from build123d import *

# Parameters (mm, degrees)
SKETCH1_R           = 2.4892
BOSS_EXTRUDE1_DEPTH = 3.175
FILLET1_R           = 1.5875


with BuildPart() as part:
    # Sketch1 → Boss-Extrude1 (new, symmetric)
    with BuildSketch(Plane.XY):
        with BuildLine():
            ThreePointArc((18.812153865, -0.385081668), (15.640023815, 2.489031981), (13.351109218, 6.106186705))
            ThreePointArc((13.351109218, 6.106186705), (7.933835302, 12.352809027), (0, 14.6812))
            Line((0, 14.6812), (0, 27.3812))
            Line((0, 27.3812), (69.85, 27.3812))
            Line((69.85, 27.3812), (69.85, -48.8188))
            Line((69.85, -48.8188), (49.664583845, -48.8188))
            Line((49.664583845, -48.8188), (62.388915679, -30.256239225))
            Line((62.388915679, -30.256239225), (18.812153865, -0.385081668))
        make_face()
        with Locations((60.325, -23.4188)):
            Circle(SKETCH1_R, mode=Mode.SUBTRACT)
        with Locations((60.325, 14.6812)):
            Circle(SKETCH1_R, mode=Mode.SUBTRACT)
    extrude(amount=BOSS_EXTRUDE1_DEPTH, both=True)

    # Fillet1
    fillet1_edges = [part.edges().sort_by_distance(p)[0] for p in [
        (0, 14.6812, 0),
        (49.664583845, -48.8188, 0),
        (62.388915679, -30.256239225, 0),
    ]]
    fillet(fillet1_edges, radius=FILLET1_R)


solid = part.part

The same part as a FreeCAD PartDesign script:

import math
import FreeCAD as App
import Part
import Sketcher

V = App.Vector
Q = App.Units.Quantity


def edges_at(feature, points):
    """Names of the edges that pass closest to the given points."""
    edges = feature.Shape.Edges
    near = lambda p: min(range(len(edges)), key=lambda i: edges[i].distToShape(Part.Vertex(*p))[0])
    return sorted({f"Edge{near(p) + 1}" for p in points})

doc = App.newDocument("Part")
body = doc.addObject("PartDesign::Body", "Body")

# Sketch on XY plane
sketch1 = doc.addObject("Sketcher::SketchObject", "Sketch")
body.addObject(sketch1)
sketch1.AttachmentSupport = (doc.XY_Plane, [""])
sketch1.MapMode = "FlatFace"
sketch1.addGeometry([
    Part.ArcOfCircle(Part.Circle(V(27.787862, 12.708897, 0), V(0, 0, 1), 15.875), math.radians(-155.422811), math.radians(-124.43)),  # 0
    Part.LineSegment(V(18.812154, -0.385082, 0), V(62.388916, -30.256239, 0)),  # 1
    Part.LineSegment(V(62.388916, -30.256239, 0), V(49.664584, -48.8188, 0)),  # 2
    Part.LineSegment(V(49.664584, -48.8188, 0), V(69.85, -48.8188, 0)),  # 3
    Part.LineSegment(V(69.85, -48.8188, 0), V(69.85, 27.3812, 0)),  # 4
    Part.LineSegment(V(69.85, 27.3812, 0), V(0, 27.3812, 0)),  # 5
    Part.LineSegment(V(0, 27.3812, 0), V(0, 14.6812, 0)),  # 6
    Part.ArcOfCircle(Part.Circle(V(0, 0, 0), V(0, 0, 1), 14.6812), math.radians(24.577189), math.radians(90)),  # 7
    Part.Circle(V(60.325, -23.4188, 0), V(0, 0, 1), 2.4892),  # 8
    Part.Circle(V(60.325, 14.6812, 0), V(0, 0, 1), 2.4892),  # 9
], False)
sketch1.addConstraint([
    Sketcher.Constraint("Tangent", 0, 2, 1, 1),
    Sketcher.Constraint("Coincident", 1, 2, 2, 1),
    Sketcher.Constraint("Coincident", 2, 2, 3, 1),
    Sketcher.Constraint("Coincident", 3, 2, 4, 1),
    Sketcher.Constraint("Coincident", 4, 2, 5, 1),
    Sketcher.Constraint("Coincident", 5, 2, 6, 1),
    Sketcher.Constraint("Coincident", 6, 2, 7, 2),
    Sketcher.Constraint("Tangent", 7, 1, 0, 1),
    Sketcher.Constraint("Horizontal", 3),
    Sketcher.Constraint("Vertical", 4),
    Sketcher.Constraint("Horizontal", 5),
    Sketcher.Constraint("Vertical", 6),
    Sketcher.Constraint("Coincident", 7, 3, -1, 1),
    Sketcher.Constraint("Equal", 8, 9),
    Sketcher.Constraint("PointOnObject", 5, 2, -2),
    Sketcher.Constraint("Perpendicular", 1, 2),
    Sketcher.Constraint("Horizontal", 9, 3, 6, 2),
    Sketcher.Constraint("Vertical", 8, 3, 9, 3),
    Sketcher.Constraint("DistanceY", 4, 1, 4, 2, Q("3 in")),
    Sketcher.Constraint("Diameter", 8, Q("0.196 in")),
    Sketcher.Constraint("DistanceY", 6, 2, 6, 1, Q("0.5 in")),
    Sketcher.Constraint("Radius", 0, Q("0.625 in")),
    Sketcher.Constraint("Radius", 7, Q("0.578 in")),
    Sketcher.Constraint("DistanceY", 2, 2, 8, 3, Q("1 in")),
    Sketcher.Constraint("DistanceX", 5, 2, 5, 1, Q("2.75 in")),
    Sketcher.Constraint("Distance", 1, Q("2.08 in")),
    Sketcher.Constraint("Angle", 1, Q("-34.43 deg")),
    Sketcher.Constraint("DistanceX", -1, 1, 8, 3, Q("2.375 in")),
    Sketcher.Constraint("Distance", 2, Q("22.50505 mm")),
])
pad1 = doc.addObject("PartDesign::Pad", "Pad")
body.addObject(pad1)
pad1.Profile = sketch1
pad1.Length = Q("0.25 in")
pad1.Midplane = True
doc.recompute()

fillet = doc.addObject("PartDesign::Fillet", "Fillet")
body.addObject(fillet)
fillet.Base = (pad1, edges_at(pad1, [(0, 14.681, 0), (49.665, -48.819, 0), (62.389, -30.256, 0)]))
fillet.Radius = Q("0.0625 in")

doc.recompute()
